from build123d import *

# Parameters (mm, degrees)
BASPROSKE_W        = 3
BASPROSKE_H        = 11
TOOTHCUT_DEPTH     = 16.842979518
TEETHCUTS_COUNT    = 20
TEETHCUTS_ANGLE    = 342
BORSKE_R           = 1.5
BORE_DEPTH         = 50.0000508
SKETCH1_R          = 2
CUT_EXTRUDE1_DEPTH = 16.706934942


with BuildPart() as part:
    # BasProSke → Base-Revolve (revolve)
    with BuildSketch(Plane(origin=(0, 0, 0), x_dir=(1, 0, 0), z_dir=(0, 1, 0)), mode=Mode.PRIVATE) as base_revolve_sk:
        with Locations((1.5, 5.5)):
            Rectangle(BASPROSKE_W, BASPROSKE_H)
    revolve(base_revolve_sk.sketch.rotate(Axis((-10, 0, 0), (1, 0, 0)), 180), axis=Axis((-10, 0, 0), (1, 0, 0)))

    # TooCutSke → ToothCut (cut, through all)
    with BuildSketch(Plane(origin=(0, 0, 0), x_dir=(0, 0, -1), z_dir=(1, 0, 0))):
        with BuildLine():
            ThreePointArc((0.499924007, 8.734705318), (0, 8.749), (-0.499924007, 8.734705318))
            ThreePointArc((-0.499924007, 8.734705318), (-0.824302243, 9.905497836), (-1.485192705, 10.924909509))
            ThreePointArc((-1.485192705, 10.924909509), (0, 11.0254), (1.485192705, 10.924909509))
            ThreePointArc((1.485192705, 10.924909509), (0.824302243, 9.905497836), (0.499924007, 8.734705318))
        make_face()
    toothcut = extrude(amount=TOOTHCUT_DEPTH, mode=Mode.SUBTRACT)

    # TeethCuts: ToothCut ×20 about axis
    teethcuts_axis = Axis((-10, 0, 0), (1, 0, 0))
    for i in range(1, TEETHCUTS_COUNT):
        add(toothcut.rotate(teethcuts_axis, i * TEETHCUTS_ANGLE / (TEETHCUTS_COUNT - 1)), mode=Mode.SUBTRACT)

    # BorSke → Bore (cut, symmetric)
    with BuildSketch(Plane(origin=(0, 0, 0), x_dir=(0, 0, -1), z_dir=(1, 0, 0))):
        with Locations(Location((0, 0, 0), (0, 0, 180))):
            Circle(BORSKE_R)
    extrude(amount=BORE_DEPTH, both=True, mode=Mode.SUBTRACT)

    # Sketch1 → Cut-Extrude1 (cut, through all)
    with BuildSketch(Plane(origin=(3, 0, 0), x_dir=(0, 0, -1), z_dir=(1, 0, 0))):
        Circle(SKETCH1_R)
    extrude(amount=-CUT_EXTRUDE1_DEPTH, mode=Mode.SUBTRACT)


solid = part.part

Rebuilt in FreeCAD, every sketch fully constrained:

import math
import FreeCAD as App
import Part
import Sketcher
from FreeCAD import Vector


def add_polygon(sketch, points):
    """Adds a closed chain of lines whose ends are joined by coincident constraints."""
    first, n = sketch.GeometryCount, len(points)
    for a, b in zip(points, points[1:] + points[:1]):
        sketch.addGeometry(Part.LineSegment(App.Vector(*a, 0), App.Vector(*b, 0)), False)
    for i in range(n):
        sketch.addConstraint(Sketcher.Constraint("Coincident", first + i, 2, first + (i + 1) % n, 1))

doc = App.newDocument("Part")
body = doc.addObject("PartDesign::Body", "Body")

# Sketch on XZ plane
sketch1 = body.newObject("Sketcher::SketchObject", "Sketch")
sketch1.AttachmentSupport = (doc.getObject("XZ_Plane"), [""])
sketch1.MapMode = "FlatFace"
add_polygon(sketch1, [(0, -11), (0, 0), (3, 0), (3, -11)])  # lines 0-3
sketch1.addConstraint([
    Sketcher.Constraint("Vertical", 0),
    Sketcher.Constraint("Horizontal", 1),
    Sketcher.Constraint("Vertical", 2),
    Sketcher.Constraint("Horizontal", 3),
    Sketcher.Constraint("Coincident", 0, 2, -1, 1),
    Sketcher.Constraint("DistanceX", 1, 1, 1, 2, 3.0),
    Sketcher.Constraint("DistanceY", 0, 1, 0, 2, 11.0),
])
revolution = body.newObject("PartDesign::Revolution", "Revolution")
revolution.Profile = sketch1
revolution.ReferenceAxis = (sketch1, ["H_Axis"])
revolution.Angle = 360

# Sketch on YZ plane
sketch2 = body.newObject("Sketcher::SketchObject", "Sketch001")
sketch2.AttachmentSupport = (doc.getObject("YZ_Plane"), [""])
sketch2.MapMode = "FlatFace"
sketch2.addGeometry([
    Part.ArcOfCircle(Part.Circle(Vector(0, 0, 0), Vector(0, 0, 1), 8.7), math.radians(-3.28), math.radians(3.28)),
    Part.ArcOfCircle(Part.Circle(Vector(8.3, -4.5, 0), Vector(0, 0, 1), 4), math.radians(48), math.radians(83)),
    Part.ArcOfCircle(Part.Circle(Vector(0, 0, 0), Vector(0, 0, 1), 11), math.radians(-7.74), math.radians(7.74)),
    Part.ArcOfCircle(Part.Circle(Vector(8.3, 4.5, 0), Vector(0, 0, 1), 4), math.radians(-83), math.radians(-48)),
], False)
sketch2.addConstraint([
    Sketcher.Constraint("Coincident", 0, 1, 1, 2),
    Sketcher.Constraint("Coincident", 1, 1, 2, 1),
    Sketcher.Constraint("Coincident", 2, 2, 3, 2),
    Sketcher.Constraint("Coincident", 3, 1, 0, 2),
    Sketcher.Constraint("Coincident", 0, 3, -1, 1),
    Sketcher.Constraint("Coincident", 2, 3, -1, 1),
    Sketcher.Constraint("Equal", 1, 3),
    Sketcher.Constraint("Symmetric", 1, 3, 3, 3, -1),
    Sketcher.Constraint("Radius", 1, 4.0),
    Sketcher.Constraint("Radius", 0, 8.749),
    Sketcher.Constraint("Radius", 2, 11.0254),
    Sketcher.Constraint("DistanceY", 1, 3, -1, 1, 4.47219),
    Sketcher.Constraint("DistanceX", -1, 1, 1, 1, 10.92491),
])
pocket1 = body.newObject("PartDesign::Pocket", "Pocket")
pocket1.Profile = sketch2
pocket1.Type = "ThroughAll"
pocket1.Reversed = True
doc.recompute()

polarpattern = body.newObject("PartDesign::PolarPattern", "PolarPattern")
polarpattern.Originals = [pocket1]
polarpattern.Axis = (doc.getObject("X_Axis"), [""])
polarpattern.Angle = 360
polarpattern.Occurrences = 20
body.Tip = polarpattern

# Sketch on YZ plane
sketch3 = body.newObject("Sketcher::SketchObject", "Sketch002")
sketch3.AttachmentSupport = (doc.getObject("YZ_Plane"), [""])
sketch3.MapMode = "FlatFace"
sketch3.addGeometry(Part.Circle(Vector(0, 0, 0), Vector(0, 0, 1), 1.5), False)
sketch3.addConstraint([
    Sketcher.Constraint("Coincident", 0, 3, -1, 1),
    Sketcher.Constraint("Diameter", 0, 3.0),
])
pocket2 = body.newObject("PartDesign::Pocket", "Pocket001")
pocket2.Profile = sketch3
pocket2.Length = 100.000102
pocket2.Midplane = True

# Sketch on YZ plane
sketch4 = body.newObject("Sketcher::SketchObject", "Sketch003")
sketch4.AttachmentSupport = (doc.getObject("YZ_Plane"), [""])
sketch4.MapMode = "FlatFace"
sketch4.AttachmentOffset = App.Placement(Vector(0, 0, 3), App.Rotation())
sketch4.addGeometry(Part.Circle(Vector(0, 0, 0), Vector(0, 0, 1), 2), False)
sketch4.addConstraint([
    Sketcher.Constraint("Coincident", 0, 3, -1, 1),
    Sketcher.Constraint("Diameter", 0, 4.0),
])
pocket3 = body.newObject("PartDesign::Pocket", "Pocket002")
pocket3.Profile = sketch4
pocket3.Type = "ThroughAll"

doc.recompute()
